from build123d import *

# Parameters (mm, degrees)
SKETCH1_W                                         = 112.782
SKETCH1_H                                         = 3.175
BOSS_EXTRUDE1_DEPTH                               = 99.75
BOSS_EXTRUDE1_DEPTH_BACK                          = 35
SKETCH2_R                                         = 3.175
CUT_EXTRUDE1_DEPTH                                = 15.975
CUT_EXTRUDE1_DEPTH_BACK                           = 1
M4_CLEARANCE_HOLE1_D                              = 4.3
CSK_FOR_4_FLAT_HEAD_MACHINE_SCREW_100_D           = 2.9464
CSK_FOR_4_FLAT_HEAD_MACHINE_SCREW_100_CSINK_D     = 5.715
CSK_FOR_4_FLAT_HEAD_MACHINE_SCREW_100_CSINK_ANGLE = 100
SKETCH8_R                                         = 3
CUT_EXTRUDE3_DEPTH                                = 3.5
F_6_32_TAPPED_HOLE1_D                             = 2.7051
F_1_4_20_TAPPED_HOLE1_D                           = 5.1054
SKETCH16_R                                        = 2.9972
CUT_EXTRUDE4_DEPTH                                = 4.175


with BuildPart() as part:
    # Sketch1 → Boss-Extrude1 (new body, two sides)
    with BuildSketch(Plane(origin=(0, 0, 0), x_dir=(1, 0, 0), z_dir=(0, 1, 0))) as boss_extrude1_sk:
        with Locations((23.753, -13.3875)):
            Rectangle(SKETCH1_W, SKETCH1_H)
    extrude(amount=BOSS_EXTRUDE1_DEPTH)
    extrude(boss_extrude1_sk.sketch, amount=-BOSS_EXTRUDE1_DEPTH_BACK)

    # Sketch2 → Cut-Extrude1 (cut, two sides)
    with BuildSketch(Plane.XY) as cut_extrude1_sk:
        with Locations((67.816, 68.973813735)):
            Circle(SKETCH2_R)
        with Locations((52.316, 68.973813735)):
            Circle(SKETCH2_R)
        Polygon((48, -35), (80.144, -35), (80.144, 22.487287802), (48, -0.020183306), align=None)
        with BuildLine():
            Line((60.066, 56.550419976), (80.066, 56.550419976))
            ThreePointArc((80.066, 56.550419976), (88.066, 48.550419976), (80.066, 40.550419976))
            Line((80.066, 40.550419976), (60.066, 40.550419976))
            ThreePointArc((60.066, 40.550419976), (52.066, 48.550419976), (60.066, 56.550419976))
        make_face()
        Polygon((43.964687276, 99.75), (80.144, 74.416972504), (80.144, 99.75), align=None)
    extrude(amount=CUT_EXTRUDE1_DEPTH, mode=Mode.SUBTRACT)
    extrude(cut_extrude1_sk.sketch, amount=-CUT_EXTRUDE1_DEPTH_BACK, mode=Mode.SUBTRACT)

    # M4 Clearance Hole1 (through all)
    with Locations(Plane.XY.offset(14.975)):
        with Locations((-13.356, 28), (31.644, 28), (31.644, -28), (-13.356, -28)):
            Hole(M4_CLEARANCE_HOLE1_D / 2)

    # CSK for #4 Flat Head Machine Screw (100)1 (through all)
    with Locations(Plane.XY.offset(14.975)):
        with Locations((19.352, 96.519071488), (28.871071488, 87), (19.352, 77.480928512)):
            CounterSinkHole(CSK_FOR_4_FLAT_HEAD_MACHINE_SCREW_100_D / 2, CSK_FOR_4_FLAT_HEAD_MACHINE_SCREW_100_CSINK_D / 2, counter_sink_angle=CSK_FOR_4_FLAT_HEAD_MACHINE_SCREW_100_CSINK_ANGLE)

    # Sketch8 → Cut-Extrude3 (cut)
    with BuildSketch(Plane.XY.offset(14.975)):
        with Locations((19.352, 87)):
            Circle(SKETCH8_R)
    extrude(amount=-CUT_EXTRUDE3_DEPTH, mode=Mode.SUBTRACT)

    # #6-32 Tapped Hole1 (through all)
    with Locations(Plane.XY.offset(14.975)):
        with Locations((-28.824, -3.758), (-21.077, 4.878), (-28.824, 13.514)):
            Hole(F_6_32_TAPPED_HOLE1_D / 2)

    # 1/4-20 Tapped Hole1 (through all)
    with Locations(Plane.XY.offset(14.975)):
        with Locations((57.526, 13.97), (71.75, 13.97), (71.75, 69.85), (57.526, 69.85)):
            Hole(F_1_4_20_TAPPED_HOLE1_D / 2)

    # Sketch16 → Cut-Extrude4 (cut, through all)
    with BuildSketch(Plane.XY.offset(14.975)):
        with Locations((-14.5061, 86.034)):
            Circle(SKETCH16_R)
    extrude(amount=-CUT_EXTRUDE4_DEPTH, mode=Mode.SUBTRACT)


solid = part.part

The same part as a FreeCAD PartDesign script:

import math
import FreeCAD as App
import Part
import Sketcher
from FreeCAD import Vector
Q = App.Units.Quantity

doc = App.newDocument("Part")
params = doc.addObject("Spreadsheet::Sheet", "Params")
for row, (alias, value) in enumerate([
    ("pad1_length", "99.75 mm"),
    ("pad1_length2", "35 mm"),
    ("sketch2_radius", "8 mm"),
    ("sketch2_diameter", "6.35 mm"),
    ("sketch2_width", "20 mm"),
    ("sketch3_diameter", "4.3 mm"),
    ("hole_diameter", "4.3 mm"),
    ("hole2_diameter", "2.9464 mm"),
    ("hole2_csink_diameter", "5.715 mm"),
    ("sketch5_diameter", "6 mm"),
    ("pocket2_length", "3.5 mm"),
    ("hole3_diameter", "2.7051 mm"),
    ("hole4_diameter", "5.1054 mm"),
], start=1):
    params.set(f"A{row}", alias)
    params.set(f"B{row}", "=" + value)
    params.setAlias(f"B{row}", alias)

body = doc.addObject("PartDesign::Body", "Body")

# Sketch on XZ plane
sketch1 = body.newObject("Sketcher::SketchObject", "Sketch")
sketch1.AttachmentSupport = (doc.getObject("XZ_Plane"), [""])
sketch1.MapMode = "FlatFace"
sketch1.addGeometry(Part.LineSegment(Vector(-32.6, 11.8, 0), Vector(-32.6, 15, 0)), False)
sketch1.addGeometry(Part.LineSegment(Vector(-32.6, 15, 0), Vector(80.1, 15, 0)), False)
sketch1.addGeometry(Part.LineSegment(Vector(80.1, 15, 0), Vector(80.1, 11.8, 0)), False)
sketch1.addGeometry(Part.LineSegment(Vector(80.1, 11.8, 0), Vector(-32.6, 11.8, 0)), False)
sketch1.addConstraint(Sketcher.Constraint("Coincident", 0, 2, 1, 1))
sketch1.addConstraint(Sketcher.Constraint("Coincident", 1, 2, 2, 1))
sketch1.addConstraint(Sketcher.Constraint("Coincident", 2, 2, 3, 1))
sketch1.addConstraint(Sketcher.Constraint("Coincident", 3, 2, 0, 1))
sketch1.addConstraint(Sketcher.Constraint("Vertical", 0))
sketch1.addConstraint(Sketcher.Constraint("Horizontal", 1))
sketch1.addConstraint(Sketcher.Constraint("Vertical", 2))
sketch1.addConstraint(Sketcher.Constraint("Horizontal", 3))
sketch1.addConstraint(Sketcher.Constraint("DistanceY", -1, 1, 2, 2, 11.8))
sketch1.addConstraint(Sketcher.Constraint("DistanceX", 1, 1, 1, 2, 112.782))
sketch1.addConstraint(Sketcher.Constraint("DistanceY", 0, 1, 0, 2, 3.175))
sketch1.addConstraint(Sketcher.Constraint("DistanceX", 0, 2, -1, 1, 32.638))
pad1 = body.newObject("PartDesign::Pad", "Pad")
pad1.Profile = sketch1
pad1.Type = "TwoLengths"
pad1.setExpression("Length", "Params.pad1_length")
pad1.setExpression("Length2", "Params.pad1_length2")
pad1.Reversed = True

# Sketch on XY plane
sketch2 = body.newObject("Sketcher::SketchObject", "Sketch001")
sketch2.AttachmentSupport = (doc.getObject("XY_Plane"), [""])
sketch2.MapMode = "FlatFace"
sketch2.addGeometry(Part.Circle(Vector(67.8, 69, 0), Vector(0, 0, 1), 3.2), False)
sketch2.addGeometry(Part.Circle(Vector(52.3, 69, 0), Vector(0, 0, 1), 3.2), False)
sketch2.addGeometry(Part.LineSegment(Vector(48, -35, 0), Vector(80.1, -35, 0)), False)
sketch2.addGeometry(Part.LineSegment(Vector(80.1, -35, 0), Vector(80.1, 22.5, 0)), False)
sketch2.addGeometry(Part.LineSegment(Vector(80.1, 22.5, 0), Vector(48, 0, 0)), False)
sketch2.addGeometry(Part.LineSegment(Vector(48, 0, 0), Vector(48, -35, 0)), False)
sketch2.addGeometry(Part.LineSegment(Vector(80.1, 56.6, 0), Vector(60.1, 56.6, 0)), False)
sketch2.addGeometry(Part.ArcOfCircle(Part.Circle(Vector(60.1, 48.6, 0), Vector(0, 0, 1), 8), math.radians(90), math.radians(270)), False)
sketch2.addGeometry(Part.LineSegment(Vector(60.1, 40.6, 0), Vector(80.1, 40.6, 0)), False)
sketch2.addGeometry(Part.ArcOfCircle(Part.Circle(Vector(80.1, 48.6, 0), Vector(0, 0, 1), 8), math.radians(-90), math.radians(90)), False)
sketch2.addGeometry(Part.LineSegment(Vector(44, 99.8, 0), Vector(80.1, 74.4, 0)), False)
sketch2.addGeometry(Part.LineSegment(Vector(80.1, 74.4, 0), Vector(80.1, 99.8, 0)), False)
sketch2.addGeometry(Part.LineSegment(Vector(80.1, 99.8, 0), Vector(44, 99.8, 0)), False)
sketch2.addConstraint(Sketcher.Constraint("Coincident", 2, 2, 3, 1))
sketch2.addConstraint(Sketcher.Constraint("Coincident", 3, 2, 4, 1))
sketch2.addConstraint(Sketcher.Constraint("Coincident", 4, 2, 5, 1))
sketch2.addConstraint(Sketcher.Constraint("Coincident", 5, 2, 2, 1))
sketch2.addConstraint(Sketcher.Constraint("Tangent", 6, 2, 7, 1))
sketch2.addConstraint(Sketcher.Constraint("Tangent", 7, 2, 8, 1))
sketch2.addConstraint(Sketcher.Constraint("Tangent", 8, 2, 9, 1))
sketch2.addConstraint(Sketcher.Constraint("Tangent", 9, 2, 6, 1))
sketch2.addConstraint(Sketcher.Constraint("Coincident", 10, 2, 11, 1))
sketch2.addConstraint(Sketcher.Constraint("Coincident", 11, 2, 12, 1))
sketch2.addConstraint(Sketcher.Constraint("Coincident", 12, 2, 10, 1))
sketch2.addConstraint(Sketcher.Constraint("Horizontal", 2))
sketch2.addConstraint(Sketcher.Constraint("Vertical", 3))
sketch2.addConstraint(Sketcher.Constraint("Vertical", 5))
sketch2.addConstraint(Sketcher.Constraint("Horizontal", 6))
sketch2.addConstraint(Sketcher.Constraint("Horizontal", 8))
sketch2.addConstraint(Sketcher.Constraint("Vertical", 11))
sketch2.addConstraint(Sketcher.Constraint("Horizontal", 12))
sketch2.addConstraint(Sketcher.Constraint("Equal", 0, 1))
sketch2.addConstraint(Sketcher.Constraint("Horizontal", 0, 3, 1, 3))
sketch2.addConstraint(Sketcher.Constraint("Vertical", 3, 2, 10, 2))
sketch2.addConstraint(Sketcher.Constraint("Radius", 7, 8.0))
sketch2.addConstraint(Sketcher.Constraint("Diameter", 0, 6.35))
sketch2.addConstraint(Sketcher.Constraint("DistanceX", 6, 2, 6, 1, 20.0))
sketch2.addConstraint(Sketcher.Constraint("Angle", 4, Q("-145 deg")))
sketch2.addConstraint(Sketcher.Constraint("Angle", 10, Q("-35 deg")))
sketch2.addConstraint(Sketcher.Constraint("DistanceY", 2, 2, -1, 1, 35.0))
sketch2.addConstraint(Sketcher.Constraint("DistanceX", -1, 1, 4, 2, 48.0))
sketch2.addConstraint(Sketcher.Constraint("DistanceX", 1, 3, 0, 3, 15.5))
sketch2.addConstraint(Sketcher.Constraint("DistanceX", 2, 1, 2, 2, 32.144))
sketch2.addConstraint(Sketcher.Constraint("DistanceY", -1, 1, 11, 2, 99.75))
sketch2.addConstraint(Sketcher.Constraint("DistanceX", 7, 3, 0, 3, 7.75))
sketch2.addConstraint(Sketcher.Constraint("DistanceX", -1, 1, 0, 3, 67.816))
sketch2.addConstraint(Sketcher.Constraint("DistanceX", 12, 2, 12, 1, 36.179313))
sketch2.addConstraint(Sketcher.Constraint("DistanceY", 3, 1, 3, 2, 57.487288))
sketch2.addConstraint(Sketcher.Constraint("DistanceY", -1, 1, 7, 3, 48.55042))
sketch2.addConstraint(Sketcher.Constraint("DistanceY", 0, 3, 10, 2, 5.443159))
sketch2.setExpression("Constraints[21]", "Params.sketch2_radius")
sketch2.setExpression("Constraints[22]", "Params.sketch2_diameter")
sketch2.setExpression("Constraints[23]", "Params.sketch2_width")
pocket1 = body.newObject("PartDesign::Pocket", "Pocket")
pocket1.Profile = sketch2
pocket1.Type = "ThroughAll"
pocket1.Midplane = True

# Sketch on XY plane
sketch3 = body.newObject("Sketcher::SketchObject", "Sketch002")
sketch3.AttachmentSupport = (doc.getObject("XY_Plane"), [""])
sketch3.MapMode = "FlatFace"
sketch3.AttachmentOffset = App.Placement(Vector(0, 0, 14.975), App.Rotation())
sketch3.addGeometry(Part.Circle(Vector(-13.4, 28, 0), Vector(0, 0, 1), 2.1), False)
sketch3.addGeometry(Part.Circle(Vector(31.6, 28, 0), Vector(0, 0, 1), 2.1), False)
sketch3.addGeometry(Part.Circle(Vector(31.6, -28, 0), Vector(0, 0, 1), 2.1), False)
sketch3.addGeometry(Part.Circle(Vector(-13.4, -28, 0), Vector(0, 0, 1), 2.1), False)
sketch3.addConstraint(Sketcher.Constraint("Equal", 0, 1))
sketch3.addConstraint(Sketcher.Constraint("Equal", 1, 2))
sketch3.addConstraint(Sketcher.Constraint("Equal", 2, 3))
sketch3.addConstraint(Sketcher.Constraint("Symmetric", 1, 3, 2, 3, -1))
sketch3.addConstraint(Sketcher.Constraint("Symmetric", 0, 3, 3, 3, -1))
sketch3.addConstraint(Sketcher.Constraint("Horizontal", 0, 3, 1, 3))
sketch3.addConstraint(Sketcher.Constraint("Diameter", 0, 4.3))
sketch3.addConstraint(Sketcher.Constraint("DistanceY", -1, 1, 0, 3, 28.0))
sketch3.addConstraint(Sketcher.Constraint("DistanceX", 0, 3, 1, 3, 45.0))
sketch3.addConstraint(Sketcher.Constraint("DistanceX", 0, 3, -1, 1, 13.356))
sketch3.setExpression("Constraints[6]", "Params.sketch3_diameter")
doc.recompute()
hole = body.newObject("PartDesign::Hole", "Hole")
hole.Profile = sketch3
hole.ThreadType = "None"
hole.setExpression("Diameter", "Params.hole_diameter")
hole.DepthType = "ThroughAll"

# Sketch on XY plane
sketch4 = body.newObject("Sketcher::SketchObject", "Sketch003")
sketch4.AttachmentSupport = (doc.getObject("XY_Plane"), [""])
sketch4.MapMode = "FlatFace"
sketch4.AttachmentOffset = App.Placement(Vector(0, 0, 14.975), App.Rotation())
sketch4.addGeometry(Part.Circle(Vector(19.4, 96.5, 0), Vector(0, 0, 1), 1.5), False)
sketch4.addGeometry(Part.Circle(Vector(28.9, 87, 0), Vector(0, 0, 1), 1.5), False)
sketch4.addGeometry(Part.Circle(Vector(19.4, 77.5, 0), Vector(0, 0, 1), 1.5), False)
sketch4.addConstraint(Sketcher.Constraint("Equal", 0, 1))
sketch4.addConstraint(Sketcher.Constraint("Equal", 1, 2))
sketch4.addConstraint(Sketcher.Constraint("Vertical", 0, 3, 2, 3))
sketch4.addConstraint(Sketcher.Constraint("DistanceY", -1, 1, 1, 3, 87.0))
sketch4.addConstraint(Sketcher.Constraint("Diameter", 0, 2.9464))
sketch4.addConstraint(Sketcher.Constraint("DistanceX", -1, 1, 0, 3, 19.352))
sketch4.addConstraint(Sketcher.Constraint("DistanceY", -1, 1, 0, 3, 96.519071))
sketch4.addConstraint(Sketcher.Constraint("DistanceX", -1, 1, 1, 3, 28.871071))
sketch4.addConstraint(Sketcher.Constraint("DistanceY", -1, 1, 2, 3, 77.480929))
doc.recompute()
hole2 = body.newObject("PartDesign::Hole", "Hole001")
hole2.Profile = sketch4
hole2.ThreadType = "None"
hole2.setExpression("Diameter", "Params.hole2_diameter")
hole2.DepthType = "ThroughAll"
hole2.HoleCutType = "Countersink"
hole2.setExpression("HoleCutDiameter", "Params.hole2_csink_diameter")
hole2.HoleCutCountersinkAngle = 100

# Sketch on XY plane
sketch5 = body.newObject("Sketcher::SketchObject", "Sketch004")
sketch5.AttachmentSupport = (doc.getObject("XY_Plane"), [""])
sketch5.MapMode = "FlatFace"
sketch5.AttachmentOffset = App.Placement(Vector(0, 0, 14.975), App.Rotation())
sketch5.addGeometry(Part.Circle(Vector(19.4, 87, 0), Vector(0, 0, 1), 3), False)
sketch5.addConstraint(Sketcher.Constraint("Diameter", 0, 6.0))
sketch5.addConstraint(Sketcher.Constraint("DistanceY", -1, 1, 0, 3, 87.0))
sketch5.addConstraint(Sketcher.Constraint("DistanceX", -1, 1, 0, 3, 19.352))
sketch5.setExpression("Constraints[0]", "Params.sketch5_diameter")
pocket2 = body.newObject("PartDesign::Pocket", "Pocket001")
pocket2.Profile = sketch5
pocket2.setExpression("Length", "Params.pocket2_length")

# Sketch on XY plane
sketch6 = body.newObject("Sketcher::SketchObject", "Sketch005")
sketch6.AttachmentSupport = (doc.getObject("XY_Plane"), [""])
sketch6.MapMode = "FlatFace"
sketch6.AttachmentOffset = App.Placement(Vector(0, 0, 14.975), App.Rotation())
sketch6.addGeometry(Part.Circle(Vector(-28.8, -3.8, 0), Vector(0, 0, 1), 1.4), False)
sketch6.addGeometry(Part.Circle(Vector(-21.1, 4.9, 0), Vector(0, 0, 1), 1.4), False)
sketch6.addGeometry(Part.Circle(Vector(-28.8, 13.5, 0), Vector(0, 0, 1), 1.4), False)
sketch6.addConstraint(Sketcher.Constraint("Equal", 0, 1))
sketch6.addConstraint(Sketcher.Constraint("Equal", 1, 2))
sketch6.addConstraint(Sketcher.Constraint("Vertical", 0, 3, 2, 3))
sketch6.addConstraint(Sketcher.Constraint("Diameter", 0, 2.7051))
sketch6.addConstraint(Sketcher.Constraint("DistanceX", 0, 3, -1, 1, 28.824))
sketch6.addConstraint(Sketcher.Constraint("DistanceY", 0, 3, -1, 1, 3.758))
sketch6.addConstraint(Sketcher.Constraint("DistanceX", 1, 3, -1, 1, 21.077))
sketch6.addConstraint(Sketcher.Constraint("DistanceY", -1, 1, 1, 3, 4.878))
sketch6.addConstraint(Sketcher.Constraint("DistanceY", -1, 1, 2, 3, 13.514))
doc.recompute()
hole3 = body.newObject("PartDesign::Hole", "Hole002")
hole3.Profile = sketch6
hole3.ThreadType = "None"
hole3.setExpression("Diameter", "Params.hole3_diameter")
hole3.DepthType = "ThroughAll"

# Sketch on XY plane
sketch7 = body.newObject("Sketcher::SketchObject", "Sketch006")
sketch7.AttachmentSupport = (doc.getObject("XY_Plane"), [""])
sketch7.MapMode = "FlatFace"
sketch7.AttachmentOffset = App.Placement(Vector(0, 0, 14.975), App.Rotation())
sketch7.addGeometry(Part.Circle(Vector(57.5, 14, 0), Vector(0, 0, 1), 2.6), False)
sketch7.addGeometry(Part.Circle(Vector(71.8, 14, 0), Vector(0, 0, 1), 2.6), False)
sketch7.addGeometry(Part.Circle(Vector(71.8, 69.8, 0), Vector(0, 0, 1), 2.6), False)
sketch7.addGeometry(Part.Circle(Vector(57.5, 69.8, 0), Vector(0, 0, 1), 2.6), False)
sketch7.addConstraint(Sketcher.Constraint("Equal", 0, 1))
sketch7.addConstraint(Sketcher.Constraint("Equal", 1, 2))
sketch7.addConstraint(Sketcher.Constraint("Equal", 2, 3))
sketch7.addConstraint(Sketcher.Constraint("Horizontal", 0, 3, 1, 3))
sketch7.addConstraint(Sketcher.Constraint("Horizontal", 2, 3, 3, 3))
sketch7.addConstraint(Sketcher.Constraint("Vertical", 1, 3, 2, 3))
sketch7.addConstraint(Sketcher.Constraint("Vertical", 0, 3, 3, 3))
sketch7.addConstraint(Sketcher.Constraint("Diameter", 0, 5.1054))
sketch7.addConstraint(Sketcher.Constraint("DistanceY", -1, 1, 0, 3, 13.97))
sketch7.addConstraint(Sketcher.Constraint("DistanceX", -1, 1, 1, 3, 71.75))
sketch7.addConstraint(Sketcher.Constraint("DistanceY", -1, 1, 2, 3, 69.85))
sketch7.addConstraint(Sketcher.Constraint("DistanceX", -1, 1, 0, 3, 57.526))
doc.recompute()
hole4 = body.newObject("PartDesign::Hole", "Hole003")
hole4.Profile = sketch7
hole4.ThreadType = "None"
hole4.setExpression("Diameter", "Params.hole4_diameter")
hole4.DepthType = "ThroughAll"

# Sketch on XY plane
sketch8 = body.newObject("Sketcher::SketchObject", "Sketch007")
sketch8.AttachmentSupport = (doc.getObject("XY_Plane"), [""])
sketch8.MapMode = "FlatFace"
sketch8.AttachmentOffset = App.Placement(Vector(0, 0, 14.975), App.Rotation())
sketch8.addGeometry(Part.Circle(Vector(-14.5, 86, 0), Vector(0, 0, 1), 3), False)
sketch8.addConstraint(Sketcher.Constraint("Diameter", 0, 5.9944))
sketch8.addConstraint(Sketcher.Constraint("DistanceY", -1, 1, 0, 3, 86.034))
sketch8.addConstraint(Sketcher.Constraint("DistanceX", 0, 3, -1, 1, 14.5061))
pocket3 = body.newObject("PartDesign::Pocket", "Pocket002")
pocket3.Profile = sketch8
pocket3.Type = "ThroughAll"

doc.recompute()
